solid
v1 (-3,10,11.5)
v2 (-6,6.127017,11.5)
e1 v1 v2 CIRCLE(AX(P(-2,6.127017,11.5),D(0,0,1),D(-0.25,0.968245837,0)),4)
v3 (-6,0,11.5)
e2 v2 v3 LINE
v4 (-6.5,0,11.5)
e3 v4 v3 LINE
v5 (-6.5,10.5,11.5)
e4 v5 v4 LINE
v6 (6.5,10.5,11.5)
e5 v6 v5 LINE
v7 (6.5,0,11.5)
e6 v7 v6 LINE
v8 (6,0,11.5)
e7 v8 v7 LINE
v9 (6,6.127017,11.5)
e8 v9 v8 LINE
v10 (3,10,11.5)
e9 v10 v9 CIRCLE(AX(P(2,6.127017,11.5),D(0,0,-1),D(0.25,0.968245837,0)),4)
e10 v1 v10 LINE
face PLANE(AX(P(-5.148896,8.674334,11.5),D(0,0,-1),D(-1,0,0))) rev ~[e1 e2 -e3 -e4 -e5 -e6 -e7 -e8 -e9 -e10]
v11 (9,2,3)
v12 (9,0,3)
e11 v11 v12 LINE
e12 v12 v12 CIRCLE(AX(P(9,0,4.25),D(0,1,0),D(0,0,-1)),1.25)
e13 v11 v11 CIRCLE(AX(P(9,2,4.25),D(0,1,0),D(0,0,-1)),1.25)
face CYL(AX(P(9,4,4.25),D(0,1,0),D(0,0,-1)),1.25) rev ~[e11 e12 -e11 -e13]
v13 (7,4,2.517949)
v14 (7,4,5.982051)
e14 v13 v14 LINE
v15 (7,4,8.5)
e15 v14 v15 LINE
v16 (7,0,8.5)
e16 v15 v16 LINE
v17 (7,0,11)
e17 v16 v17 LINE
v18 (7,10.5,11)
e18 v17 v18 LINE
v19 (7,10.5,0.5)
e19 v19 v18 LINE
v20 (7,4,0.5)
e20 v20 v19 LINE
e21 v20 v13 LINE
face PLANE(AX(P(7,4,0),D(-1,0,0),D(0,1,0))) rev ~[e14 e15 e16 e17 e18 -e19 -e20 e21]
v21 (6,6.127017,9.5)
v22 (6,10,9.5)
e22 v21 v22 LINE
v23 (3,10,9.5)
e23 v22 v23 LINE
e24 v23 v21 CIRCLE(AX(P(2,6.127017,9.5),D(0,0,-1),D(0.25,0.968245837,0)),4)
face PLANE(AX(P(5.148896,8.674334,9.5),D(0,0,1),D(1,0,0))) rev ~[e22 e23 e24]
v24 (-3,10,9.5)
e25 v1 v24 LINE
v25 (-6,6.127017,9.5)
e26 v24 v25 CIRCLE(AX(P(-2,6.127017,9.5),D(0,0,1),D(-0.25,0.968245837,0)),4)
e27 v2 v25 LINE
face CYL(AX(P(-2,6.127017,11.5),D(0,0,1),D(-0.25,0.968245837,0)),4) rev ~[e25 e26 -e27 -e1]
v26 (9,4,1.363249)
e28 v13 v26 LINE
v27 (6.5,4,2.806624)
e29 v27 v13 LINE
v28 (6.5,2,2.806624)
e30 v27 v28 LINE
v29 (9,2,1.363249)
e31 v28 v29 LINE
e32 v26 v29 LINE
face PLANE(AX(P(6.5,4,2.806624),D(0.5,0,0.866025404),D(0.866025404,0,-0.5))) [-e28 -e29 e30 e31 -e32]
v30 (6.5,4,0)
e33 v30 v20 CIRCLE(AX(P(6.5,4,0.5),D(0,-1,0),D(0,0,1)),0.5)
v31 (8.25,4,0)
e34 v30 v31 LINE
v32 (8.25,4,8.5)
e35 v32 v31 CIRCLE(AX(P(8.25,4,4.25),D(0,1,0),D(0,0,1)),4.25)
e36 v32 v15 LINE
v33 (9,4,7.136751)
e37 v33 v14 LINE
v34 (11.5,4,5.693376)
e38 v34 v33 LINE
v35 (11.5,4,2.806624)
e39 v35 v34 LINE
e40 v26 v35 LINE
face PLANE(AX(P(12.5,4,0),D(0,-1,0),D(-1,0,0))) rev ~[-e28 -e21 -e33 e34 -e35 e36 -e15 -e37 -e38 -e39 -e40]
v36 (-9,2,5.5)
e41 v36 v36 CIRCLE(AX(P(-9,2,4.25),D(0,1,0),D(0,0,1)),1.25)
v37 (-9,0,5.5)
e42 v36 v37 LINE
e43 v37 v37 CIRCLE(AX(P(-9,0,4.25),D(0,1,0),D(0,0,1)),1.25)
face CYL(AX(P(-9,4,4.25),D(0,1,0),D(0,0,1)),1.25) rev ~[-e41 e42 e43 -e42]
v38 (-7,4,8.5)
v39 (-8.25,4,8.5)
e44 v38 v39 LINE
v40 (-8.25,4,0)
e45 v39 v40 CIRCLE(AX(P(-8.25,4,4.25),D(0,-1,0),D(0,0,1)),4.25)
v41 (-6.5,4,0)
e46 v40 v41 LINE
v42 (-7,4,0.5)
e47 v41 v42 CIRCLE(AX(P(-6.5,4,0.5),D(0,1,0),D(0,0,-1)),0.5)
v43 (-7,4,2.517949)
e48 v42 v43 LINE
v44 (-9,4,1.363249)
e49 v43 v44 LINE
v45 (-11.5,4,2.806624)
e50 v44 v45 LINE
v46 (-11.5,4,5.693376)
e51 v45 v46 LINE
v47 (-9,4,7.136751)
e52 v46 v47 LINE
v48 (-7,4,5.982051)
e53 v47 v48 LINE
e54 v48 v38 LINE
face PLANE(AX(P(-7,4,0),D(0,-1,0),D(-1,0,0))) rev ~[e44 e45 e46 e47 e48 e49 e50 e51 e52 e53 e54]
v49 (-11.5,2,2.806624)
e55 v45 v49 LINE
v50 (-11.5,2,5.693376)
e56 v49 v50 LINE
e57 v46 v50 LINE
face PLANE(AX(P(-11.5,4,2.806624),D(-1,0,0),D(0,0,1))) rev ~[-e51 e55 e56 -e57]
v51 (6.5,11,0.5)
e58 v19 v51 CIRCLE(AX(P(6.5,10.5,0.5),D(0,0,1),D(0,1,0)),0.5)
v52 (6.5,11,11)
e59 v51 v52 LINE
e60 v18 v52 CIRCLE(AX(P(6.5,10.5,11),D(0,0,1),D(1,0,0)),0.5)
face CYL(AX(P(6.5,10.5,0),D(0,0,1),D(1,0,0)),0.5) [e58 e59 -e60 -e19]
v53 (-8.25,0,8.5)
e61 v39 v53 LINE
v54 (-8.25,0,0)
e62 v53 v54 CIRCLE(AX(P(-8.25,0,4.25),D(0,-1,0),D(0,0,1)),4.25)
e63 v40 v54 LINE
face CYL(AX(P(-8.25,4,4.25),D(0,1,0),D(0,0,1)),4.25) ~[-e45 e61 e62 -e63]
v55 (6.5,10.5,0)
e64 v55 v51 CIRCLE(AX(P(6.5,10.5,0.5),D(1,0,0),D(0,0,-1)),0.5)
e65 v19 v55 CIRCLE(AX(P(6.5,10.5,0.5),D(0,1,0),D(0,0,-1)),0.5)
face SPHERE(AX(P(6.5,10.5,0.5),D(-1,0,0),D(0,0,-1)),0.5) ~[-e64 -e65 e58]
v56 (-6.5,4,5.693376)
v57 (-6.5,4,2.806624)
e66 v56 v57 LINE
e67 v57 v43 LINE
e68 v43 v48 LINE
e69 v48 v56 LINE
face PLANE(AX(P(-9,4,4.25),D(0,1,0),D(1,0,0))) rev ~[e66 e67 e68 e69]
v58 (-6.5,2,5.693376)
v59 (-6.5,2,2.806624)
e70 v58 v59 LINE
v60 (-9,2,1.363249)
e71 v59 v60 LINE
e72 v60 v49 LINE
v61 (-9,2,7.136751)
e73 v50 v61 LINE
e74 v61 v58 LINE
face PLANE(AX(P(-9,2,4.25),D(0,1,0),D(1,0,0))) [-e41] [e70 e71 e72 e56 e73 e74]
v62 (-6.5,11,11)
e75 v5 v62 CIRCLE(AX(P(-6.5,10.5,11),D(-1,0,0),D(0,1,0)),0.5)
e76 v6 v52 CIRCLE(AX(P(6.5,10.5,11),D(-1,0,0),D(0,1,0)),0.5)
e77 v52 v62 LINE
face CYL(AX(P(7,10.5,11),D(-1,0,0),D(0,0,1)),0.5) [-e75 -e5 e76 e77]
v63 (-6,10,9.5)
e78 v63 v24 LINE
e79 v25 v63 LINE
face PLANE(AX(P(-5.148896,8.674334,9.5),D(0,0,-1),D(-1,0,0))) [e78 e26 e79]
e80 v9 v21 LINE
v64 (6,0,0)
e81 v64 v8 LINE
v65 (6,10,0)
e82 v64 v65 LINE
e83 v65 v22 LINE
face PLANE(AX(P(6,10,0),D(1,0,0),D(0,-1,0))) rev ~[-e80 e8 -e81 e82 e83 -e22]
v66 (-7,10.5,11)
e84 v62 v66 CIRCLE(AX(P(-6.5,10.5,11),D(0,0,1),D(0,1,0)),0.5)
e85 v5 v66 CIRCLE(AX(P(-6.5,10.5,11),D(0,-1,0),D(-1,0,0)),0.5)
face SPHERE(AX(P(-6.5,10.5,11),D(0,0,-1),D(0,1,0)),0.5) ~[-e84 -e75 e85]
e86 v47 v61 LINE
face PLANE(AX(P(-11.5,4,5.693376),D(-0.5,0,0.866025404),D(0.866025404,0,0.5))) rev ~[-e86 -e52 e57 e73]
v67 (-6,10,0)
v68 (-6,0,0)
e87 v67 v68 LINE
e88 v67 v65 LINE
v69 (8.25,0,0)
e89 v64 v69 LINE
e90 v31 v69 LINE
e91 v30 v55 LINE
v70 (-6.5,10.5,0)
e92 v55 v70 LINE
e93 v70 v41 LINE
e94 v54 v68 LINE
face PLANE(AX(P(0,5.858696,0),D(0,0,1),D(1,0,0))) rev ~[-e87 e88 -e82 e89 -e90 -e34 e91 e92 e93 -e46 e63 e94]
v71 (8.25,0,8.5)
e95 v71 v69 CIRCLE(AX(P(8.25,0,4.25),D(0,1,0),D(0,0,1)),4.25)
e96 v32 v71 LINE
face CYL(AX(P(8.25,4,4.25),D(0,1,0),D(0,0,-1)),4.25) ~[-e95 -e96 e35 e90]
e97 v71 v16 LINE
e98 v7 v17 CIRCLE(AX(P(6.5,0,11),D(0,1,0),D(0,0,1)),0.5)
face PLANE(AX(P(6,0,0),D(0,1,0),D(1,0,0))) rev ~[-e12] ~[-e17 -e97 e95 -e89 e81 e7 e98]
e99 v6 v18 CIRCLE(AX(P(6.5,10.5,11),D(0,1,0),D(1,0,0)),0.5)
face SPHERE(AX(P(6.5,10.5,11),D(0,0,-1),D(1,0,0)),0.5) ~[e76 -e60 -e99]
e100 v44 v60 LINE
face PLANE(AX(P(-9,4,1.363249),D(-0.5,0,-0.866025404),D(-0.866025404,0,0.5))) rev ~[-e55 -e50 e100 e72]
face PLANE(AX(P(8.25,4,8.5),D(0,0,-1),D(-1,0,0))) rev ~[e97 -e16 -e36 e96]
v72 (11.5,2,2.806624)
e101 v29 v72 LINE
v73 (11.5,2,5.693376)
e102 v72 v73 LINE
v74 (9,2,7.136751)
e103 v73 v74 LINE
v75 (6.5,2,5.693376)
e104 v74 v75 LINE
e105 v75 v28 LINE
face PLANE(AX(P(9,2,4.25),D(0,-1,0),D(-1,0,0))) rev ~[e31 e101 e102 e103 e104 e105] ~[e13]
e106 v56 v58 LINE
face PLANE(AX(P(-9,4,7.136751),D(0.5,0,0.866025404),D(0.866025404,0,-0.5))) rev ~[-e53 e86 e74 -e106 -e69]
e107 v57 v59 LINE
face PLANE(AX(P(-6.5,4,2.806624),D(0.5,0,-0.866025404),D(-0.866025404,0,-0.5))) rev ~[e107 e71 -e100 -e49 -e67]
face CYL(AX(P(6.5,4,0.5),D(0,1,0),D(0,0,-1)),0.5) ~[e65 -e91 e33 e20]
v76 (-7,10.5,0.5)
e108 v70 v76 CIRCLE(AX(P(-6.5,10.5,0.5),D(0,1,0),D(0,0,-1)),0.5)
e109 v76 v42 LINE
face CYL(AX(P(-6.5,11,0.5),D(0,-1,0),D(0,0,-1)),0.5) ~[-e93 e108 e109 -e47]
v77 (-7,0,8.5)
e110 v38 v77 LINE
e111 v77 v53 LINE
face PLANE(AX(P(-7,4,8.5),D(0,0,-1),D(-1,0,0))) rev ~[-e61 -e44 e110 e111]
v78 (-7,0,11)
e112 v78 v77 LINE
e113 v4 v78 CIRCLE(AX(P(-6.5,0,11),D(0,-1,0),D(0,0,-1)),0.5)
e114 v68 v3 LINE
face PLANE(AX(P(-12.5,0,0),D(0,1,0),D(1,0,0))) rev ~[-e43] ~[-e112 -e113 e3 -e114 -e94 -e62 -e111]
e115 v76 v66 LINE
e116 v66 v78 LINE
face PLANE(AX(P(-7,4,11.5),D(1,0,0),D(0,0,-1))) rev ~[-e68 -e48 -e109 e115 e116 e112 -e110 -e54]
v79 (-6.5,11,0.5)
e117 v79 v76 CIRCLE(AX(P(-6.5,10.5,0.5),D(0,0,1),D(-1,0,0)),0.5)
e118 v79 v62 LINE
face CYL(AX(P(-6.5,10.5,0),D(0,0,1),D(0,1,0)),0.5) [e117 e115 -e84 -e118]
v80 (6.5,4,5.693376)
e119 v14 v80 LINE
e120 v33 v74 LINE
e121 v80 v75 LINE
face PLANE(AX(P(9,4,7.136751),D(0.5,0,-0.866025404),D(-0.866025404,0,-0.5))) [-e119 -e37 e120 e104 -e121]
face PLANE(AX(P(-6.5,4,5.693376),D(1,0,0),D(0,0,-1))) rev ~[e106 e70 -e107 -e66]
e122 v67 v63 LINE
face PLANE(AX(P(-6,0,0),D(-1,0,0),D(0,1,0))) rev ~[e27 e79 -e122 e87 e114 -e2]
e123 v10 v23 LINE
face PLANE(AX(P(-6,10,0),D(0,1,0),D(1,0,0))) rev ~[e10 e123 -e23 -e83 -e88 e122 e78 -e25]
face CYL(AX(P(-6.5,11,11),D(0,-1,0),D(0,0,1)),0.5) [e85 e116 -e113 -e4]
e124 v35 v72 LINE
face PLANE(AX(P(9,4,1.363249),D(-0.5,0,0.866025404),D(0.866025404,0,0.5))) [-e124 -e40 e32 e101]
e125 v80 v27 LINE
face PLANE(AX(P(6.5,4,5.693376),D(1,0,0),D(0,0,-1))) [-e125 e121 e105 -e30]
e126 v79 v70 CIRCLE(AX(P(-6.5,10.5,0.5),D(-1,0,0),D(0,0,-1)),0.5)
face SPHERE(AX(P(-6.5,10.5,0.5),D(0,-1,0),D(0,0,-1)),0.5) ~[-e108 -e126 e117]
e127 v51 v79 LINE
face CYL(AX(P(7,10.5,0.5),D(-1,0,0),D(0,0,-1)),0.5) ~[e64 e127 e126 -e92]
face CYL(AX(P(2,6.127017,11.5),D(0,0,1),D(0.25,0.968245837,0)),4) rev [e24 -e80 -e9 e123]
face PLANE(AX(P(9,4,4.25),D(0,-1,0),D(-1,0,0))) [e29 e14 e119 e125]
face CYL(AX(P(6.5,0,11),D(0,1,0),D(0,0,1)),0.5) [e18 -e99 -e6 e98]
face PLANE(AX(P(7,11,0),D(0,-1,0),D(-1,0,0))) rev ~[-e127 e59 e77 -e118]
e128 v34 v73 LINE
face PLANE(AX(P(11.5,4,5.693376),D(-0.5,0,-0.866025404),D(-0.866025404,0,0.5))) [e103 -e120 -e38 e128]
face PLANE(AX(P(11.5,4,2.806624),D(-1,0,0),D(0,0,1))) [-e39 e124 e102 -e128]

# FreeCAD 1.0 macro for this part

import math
import FreeCAD as App
import Part
import Sketcher
Q = App.Units.Quantity


def edges_at(feature, points):
    """Names of the edges that pass closest to the given points."""
    edges = feature.Shape.Edges
    near = lambda p: min(range(len(edges)), key=lambda i: edges[i].distToShape(Part.Vertex(*p))[0])
    return sorted({f"Edge{near(p) + 1}" for p in points})

doc = App.newDocument("Part")
body = doc.addObject("PartDesign::Body", "Body")

sketch1 = doc.addObject("Sketcher::SketchObject", "Sketch")
body.addObject(sketch1)
sketch1.AttachmentSupport = (doc.XY_Plane, [""])
sketch1.MapMode = "FlatFace"
sketch1.addGeometry([
    Part.LineSegment(App.Vector(-12.5, 0, 0), App.Vector(-6, 0, 0)),
    Part.LineSegment(App.Vector(-6, 0, 0), App.Vector(-6, 10, 0)),
    Part.LineSegment(App.Vector(-6, 10, 0), App.Vector(6, 10, 0)),
    Part.LineSegment(App.Vector(6, 10, 0), App.Vector(6, 0, 0)),
    Part.LineSegment(App.Vector(6, 0, 0), App.Vector(12.5, 0, 0)),
    Part.LineSegment(App.Vector(12.5, 0, 0), App.Vector(12.5, 4, 0)),
    Part.LineSegment(App.Vector(12.5, 4, 0), App.Vector(7, 4, 0)),
    Part.LineSegment(App.Vector(7, 4, 0), App.Vector(7, 11, 0)),
    Part.LineSegment(App.Vector(7, 11, 0), App.Vector(-7, 11, 0)),
    Part.LineSegment(App.Vector(-7, 11, 0), App.Vector(-7, 4, 0)),
    Part.LineSegment(App.Vector(-7, 4, 0), App.Vector(-12.5, 4, 0)),
    Part.LineSegment(App.Vector(-12.5, 4, 0), App.Vector(-12.5, 0, 0)),
], False)
sketch1.addConstraint([
    Sketcher.Constraint("Coincident", 0, 2, 1, 1),
    Sketcher.Constraint("Coincident", 1, 2, 2, 1),
    Sketcher.Constraint("Coincident", 2, 2, 3, 1),
    Sketcher.Constraint("Coincident", 3, 2, 4, 1),
    Sketcher.Constraint("Coincident", 4, 2, 5, 1),
    Sketcher.Constraint("Coincident", 5, 2, 6, 1),
    Sketcher.Constraint("Coincident", 6, 2, 7, 1),
    Sketcher.Constraint("Coincident", 7, 2, 8, 1),
    Sketcher.Constraint("Coincident", 8, 2, 9, 1),
    Sketcher.Constraint("Coincident", 9, 2, 10, 1),
    Sketcher.Constraint("Coincident", 10, 2, 11, 1),
    Sketcher.Constraint("Coincident", 11, 2, 0, 1),
    Sketcher.Constraint("Horizontal", 0),
    Sketcher.Constraint("Vertical", 1),
    Sketcher.Constraint("Horizontal", 2),
    Sketcher.Constraint("Vertical", 3),
    Sketcher.Constraint("Horizontal", 4),
    Sketcher.Constraint("Vertical", 5),
    Sketcher.Constraint("Horizontal", 6),
    Sketcher.Constraint("Vertical", 7),
    Sketcher.Constraint("Horizontal", 8),
    Sketcher.Constraint("Vertical", 9),
    Sketcher.Constraint("Horizontal", 10),
    Sketcher.Constraint("Vertical", 11),
    Sketcher.Constraint("Symmetric", 0, 2, 3, 2, -1, 1),
    Sketcher.Constraint("Symmetric", 6, 2, 9, 2, -2),
    Sketcher.Constraint("Symmetric", 4, 2, 11, 2, -2),
    Sketcher.Constraint("DistanceX", 2, 1, 2, 2, 12.0),
    Sketcher.Constraint("DistanceX", 8, 2, 8, 1, 14.0),
    Sketcher.Constraint("DistanceY", 1, 1, 1, 2, 10.0),
    Sketcher.Constraint("DistanceY", 5, 1, 5, 2, 4.0),
    Sketcher.Constraint("DistanceY", 7, 1, 7, 2, 7.0),
    Sketcher.Constraint("DistanceX", 0, 1, 0, 2, 6.5),
])
pad1 = doc.addObject("PartDesign::Pad", "Pad")
body.addObject(pad1)
pad1.Profile = sketch1
pad1.Length = 11.5

sketch2 = doc.addObject("Sketcher::SketchObject", "Sketch001")
body.addObject(sketch2)
sketch2.AttachmentSupport = (doc.XZ_Plane, [""])
sketch2.MapMode = "FlatFace"
sketch2.AttachmentOffset = App.Placement(App.Vector(0, 0, -4), App.Rotation())
sketch2.addGeometry([
    Part.LineSegment(App.Vector(-16.5, -4, 0), App.Vector(-16.5, 15.5, 0)),
    Part.LineSegment(App.Vector(-16.5, 15.5, 0), App.Vector(16.5, 15.5, 0)),
    Part.LineSegment(App.Vector(16.5, 15.5, 0), App.Vector(16.5, -4, 0)),
    Part.LineSegment(App.Vector(16.5, -4, 0), App.Vector(-16.5, -4, 0)),
    Part.ArcOfCircle(Part.Circle(App.Vector(-8.2, 4.2, 0), App.Vector(0, 0, 1), 4.2), math.radians(90), math.radians(270)),
    Part.LineSegment(App.Vector(-8.2, 0, 0), App.Vector(8.2, 0, 0)),
    Part.ArcOfCircle(Part.Circle(App.Vector(8.2, 4.2, 0), App.Vector(0, 0, 1), 4.2), math.radians(-90), math.radians(90)),
    Part.LineSegment(App.Vector(8.2, 8.5, 0), App.Vector(7, 8.5, 0)),
    Part.LineSegment(App.Vector(7, 8.5, 0), App.Vector(7, 11.5, 0)),
    Part.LineSegment(App.Vector(7, 11.5, 0), App.Vector(-7, 11.5, 0)),
    Part.LineSegment(App.Vector(-7, 11.5, 0), App.Vector(-7, 8.5, 0)),
    Part.LineSegment(App.Vector(-7, 8.5, 0), App.Vector(-8.2, 8.5, 0)),
], False)
sketch2.addConstraint([
    Sketcher.Constraint("Coincident", 0, 2, 1, 1),
    Sketcher.Constraint("Coincident", 1, 2, 2, 1),
    Sketcher.Constraint("Coincident", 2, 2, 3, 1),
    Sketcher.Constraint("Coincident", 3, 2, 0, 1),
    Sketcher.Constraint("Tangent", 4, 2, 5, 1),
    Sketcher.Constraint("Tangent", 5, 2, 6, 1),
    Sketcher.Constraint("Tangent", 6, 2, 7, 1),
    Sketcher.Constraint("Coincident", 7, 2, 8, 1),
    Sketcher.Constraint("Coincident", 8, 2, 9, 1),
    Sketcher.Constraint("Coincident", 9, 2, 10, 1),
    Sketcher.Constraint("Coincident", 10, 2, 11, 1),
    Sketcher.Constraint("Tangent", 11, 2, 4, 1),
    Sketcher.Constraint("Vertical", 0),
    Sketcher.Constraint("Horizontal", 1),
    Sketcher.Constraint("Vertical", 2),
    Sketcher.Constraint("Horizontal", 3),
    Sketcher.Constraint("Horizontal", 5),
    Sketcher.Constraint("Horizontal", 7),
    Sketcher.Constraint("Vertical", 8),
    Sketcher.Constraint("Horizontal", 9),
    Sketcher.Constraint("Vertical", 10),
    Sketcher.Constraint("Horizontal", 11),
    Sketcher.Constraint("Equal", 4, 6),
    Sketcher.Constraint("Symmetric", 4, 2, 5, 2, -1, 1),
    Sketcher.Constraint("Equal", 7, 11),
    Sketcher.Constraint("DistanceX", 9, 2, 9, 1, 14.0),
    Sketcher.Constraint("DistanceY", 8, 1, 8, 2, 3.0),
    Sketcher.Constraint("Radius", 4, 4.25),
    Sketcher.Constraint("DistanceX", 5, 1, 5, 2, 16.5),
    Sketcher.Constraint("DistanceX", 1, 1, 1, 2, 32.928),
    Sketcher.Constraint("DistanceY", 0, 1, 0, 2, 19.428),
    Sketcher.Constraint("DistanceX", 0, 2, -1, 1, 16.464),
    Sketcher.Constraint("DistanceY", -1, 1, 0, 2, 15.464),
])
pocket1 = doc.addObject("PartDesign::Pocket", "Pocket")
body.addObject(pocket1)
pocket1.Profile = sketch2
pocket1.Type = "ThroughAll"
pocket1.Reversed = True

sketch3 = doc.addObject("Sketcher::SketchObject", "Sketch002")
body.addObject(sketch3)
sketch3.AttachmentSupport = (doc.XZ_Plane, [""])
sketch3.MapMode = "FlatFace"
sketch3.AttachmentOffset = App.Placement(App.Vector(0, 0, -4), App.Rotation())
sketch3.addGeometry([
    Part.Circle(App.Vector(-9, 4.2, 0), App.Vector(0, 0, 1), 1.2),
    Part.Circle(App.Vector(9, 4.2, 0), App.Vector(0, 0, 1), 1.2),
], False)
sketch3.addConstraint([
    Sketcher.Constraint("Equal", 0, 1),
    Sketcher.Constraint("Symmetric", 0, 3, 1, 3, -2),
    Sketcher.Constraint("Diameter", 0, 2.5),
    Sketcher.Constraint("DistanceX", 0, 3, -1, 1, 9.0),
    Sketcher.Constraint("DistanceY", -1, 1, 0, 3, 4.25),
])
pocket2 = doc.addObject("PartDesign::Pocket", "Pocket001")
body.addObject(pocket2)
pocket2.Profile = sketch3
pocket2.Type = "ThroughAll"
pocket2.Reversed = True

sketch4 = doc.addObject("Sketcher::SketchObject", "Sketch003")
body.addObject(sketch4)
sketch4.AttachmentSupport = (doc.XZ_Plane, [""])
sketch4.MapMode = "FlatFace"
sketch4.AttachmentOffset = App.Placement(App.Vector(0, 0, -4), App.Rotation())
sketch4.addGeometry([
    Part.LineSegment(App.Vector(-6.5, 5.7, 0), App.Vector(-6.5, 2.8, 0)),
    Part.LineSegment(App.Vector(-6.5, 2.8, 0), App.Vector(-9, 1.4, 0)),
    Part.LineSegment(App.Vector(-9, 1.4, 0), App.Vector(-11.5, 2.8, 0)),
    Part.LineSegment(App.Vector(-11.5, 2.8, 0), App.Vector(-11.5, 5.7, 0)),
    Part.LineSegment(App.Vector(-11.5, 5.7, 0), App.Vector(-9, 7.1, 0)),
    Part.LineSegment(App.Vector(-9, 7.1, 0), App.Vector(-6.5, 5.7, 0)),
    Part.LineSegment(App.Vector(6.5, 5.7, 0), App.Vector(9, 7.1, 0)),
    Part.LineSegment(App.Vector(9, 7.1, 0), App.Vector(11.5, 5.7, 0)),
    Part.LineSegment(App.Vector(11.5, 5.7, 0), App.Vector(11.5, 2.8, 0)),
    Part.LineSegment(App.Vector(11.5, 2.8, 0), App.Vector(9, 1.4, 0)),
    Part.LineSegment(App.Vector(9, 1.4, 0), App.Vector(6.5, 2.8, 0)),
    Part.LineSegment(App.Vector(6.5, 2.8, 0), App.Vector(6.5, 5.7, 0)),
], False)
sketch4.addConstraint([
    Sketcher.Constraint("Coincident", 0, 2, 1, 1),
    Sketcher.Constraint("Coincident", 1, 2, 2, 1),
    Sketcher.Constraint("Coincident", 2, 2, 3, 1),
    Sketcher.Constraint("Coincident", 3, 2, 4, 1),
    Sketcher.Constraint("Coincident", 4, 2, 5, 1),
    Sketcher.Constraint("Coincident", 5, 2, 0, 1),
    Sketcher.Constraint("Coincident", 6, 2, 7, 1),
    Sketcher.Constraint("Coincident", 7, 2, 8, 1),
    Sketcher.Constraint("Coincident", 8, 2, 9, 1),
    Sketcher.Constraint("Coincident", 9, 2, 10, 1),
    Sketcher.Constraint("Coincident", 10, 2, 11, 1),
    Sketcher.Constraint("Coincident", 11, 2, 6, 1),
    Sketcher.Constraint("Vertical", 0),
    Sketcher.Constraint("Vertical", 3),
    Sketcher.Constraint("Vertical", 8),
    Sketcher.Constraint("Vertical", 11),
    Sketcher.Constraint("Symmetric", 4, 2, 6, 2, -2),
    Sketcher.Constraint("Symmetric", 3, 2, 7, 2, -2),
    Sketcher.Constraint("Symmetric", 1, 2, 9, 2, -2),
    Sketcher.Constraint("Symmetric", 0, 2, 10, 2, -2),
    Sketcher.Constraint("Parallel", 1, 4),
    Sketcher.Constraint("Parallel", 2, 5),
    Sketcher.Constraint("Parallel", 4, 6),
    Sketcher.Constraint("Parallel", 5, 7),
    Sketcher.Constraint("Parallel", 6, 9),
    Sketcher.Constraint("Horizontal", 0, 2, 2, 2),
    Sketcher.Constraint("Horizontal", 3, 2, 5, 2),
    Sketcher.Constraint("Angle", 1, Q("-150 deg")),
    Sketcher.Constraint("DistanceX", 1, 2, -1, 1, 9.0),
    Sketcher.Constraint("DistanceX", 2, 2, 0, 2, 5.0),
    Sketcher.Constraint("DistanceY", 0, 2, 0, 1, 2.886751),
    Sketcher.Constraint("DistanceY", -1, 1, 1, 2, 1.363249),
])
pocket3 = doc.addObject("PartDesign::Pocket", "Pocket002")
body.addObject(pocket3)
pocket3.Profile = sketch4
pocket3.Length = 2
pocket3.Reversed = True

sketch5 = doc.addObject("Sketcher::SketchObject", "Sketch004")
body.addObject(sketch5)
sketch5.AttachmentSupport = (doc.XY_Plane, [""])
sketch5.MapMode = "FlatFace"
sketch5.AttachmentOffset = App.Placement(App.Vector(0, 0, 11.5), App.Rotation())
sketch5.addGeometry([
    Part.LineSegment(App.Vector(-3, 10, 0), App.Vector(-6, 10, 0)),
    Part.LineSegment(App.Vector(-6, 10, 0), App.Vector(-6, 6.1, 0)),
    Part.ArcOfCircle(Part.Circle(App.Vector(-2, 6.1, 0), App.Vector(0, 0, 1), 4), math.radians(104), math.radians(180)),
    Part.LineSegment(App.Vector(6, 6.1, 0), App.Vector(6, 10, 0)),
    Part.LineSegment(App.Vector(6, 10, 0), App.Vector(3, 10, 0)),
    Part.ArcOfCircle(Part.Circle(App.Vector(2, 6.1, 0), App.Vector(0, 0, 1), 4), math.radians(0), math.radians(76)),
], False)
sketch5.addConstraint([
    Sketcher.Constraint("Coincident", 0, 2, 1, 1),
    Sketcher.Constraint("Tangent", 1, 2, 2, 2),
    Sketcher.Constraint("Coincident", 2, 1, 0, 1),
    Sketcher.Constraint("Coincident", 3, 2, 4, 1),
    Sketcher.Constraint("Coincident", 4, 2, 5, 2),
    Sketcher.Constraint("Tangent", 5, 1, 3, 1),
    Sketcher.Constraint("Horizontal", 0),
    Sketcher.Constraint("Vertical", 1),
    Sketcher.Constraint("Vertical", 3),
    Sketcher.Constraint("Horizontal", 4),
    Sketcher.Constraint("Equal", 2, 5),
    Sketcher.Constraint("Symmetric", 2, 3, 5, 3, -2),
    Sketcher.Constraint("Horizontal", 2, 1, 3, 2),
    Sketcher.Constraint("Radius", 2, 4.0),
    Sketcher.Constraint("DistanceX", 0, 2, 0, 1, 3.0),
    Sketcher.Constraint("DistanceX", 2, 3, -1, 1, 2.0),
    Sketcher.Constraint("DistanceY", -1, 1, 0, 2, 10.0),
])
pad2 = doc.addObject("PartDesign::Pad", "Pad001")
body.addObject(pad2)
pad2.Profile = sketch5
pad2.Length = 2
pad2.Reversed = True
doc.recompute()

fillet = doc.addObject("PartDesign::Fillet", "Fillet")
body.addObject(fillet)
fillet.Base = (pad2, edges_at(pad2, [
    (-7, 7.5, 0),
    (0, 11, 0),
    (7, 7.5, 0),
    (-7, 11, 5.75),
    (7, 11, 5.75),
    (7, 5.5, 11.5),
    (0, 11, 11.5),
    (-7, 5.5, 11.5),
]))
fillet.Radius = 0.5

doc.recompute()
